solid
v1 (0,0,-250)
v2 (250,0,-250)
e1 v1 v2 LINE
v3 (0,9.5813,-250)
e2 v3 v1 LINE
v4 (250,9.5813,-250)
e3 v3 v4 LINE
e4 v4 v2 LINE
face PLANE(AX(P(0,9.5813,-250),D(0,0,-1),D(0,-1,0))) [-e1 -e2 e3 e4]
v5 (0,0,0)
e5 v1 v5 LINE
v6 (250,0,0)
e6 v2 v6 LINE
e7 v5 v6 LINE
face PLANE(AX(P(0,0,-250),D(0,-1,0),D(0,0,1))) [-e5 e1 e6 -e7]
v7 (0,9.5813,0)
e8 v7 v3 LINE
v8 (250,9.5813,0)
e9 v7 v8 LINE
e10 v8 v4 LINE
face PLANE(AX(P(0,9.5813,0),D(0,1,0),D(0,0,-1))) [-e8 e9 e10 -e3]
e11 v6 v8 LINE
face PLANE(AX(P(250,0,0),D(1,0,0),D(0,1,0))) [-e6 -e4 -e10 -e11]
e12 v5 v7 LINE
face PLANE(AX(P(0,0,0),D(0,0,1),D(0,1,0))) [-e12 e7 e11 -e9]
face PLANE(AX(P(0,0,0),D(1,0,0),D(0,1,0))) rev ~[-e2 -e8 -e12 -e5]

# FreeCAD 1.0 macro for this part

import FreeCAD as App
import Part
import Sketcher
from FreeCAD import Vector


def add_polygon(sketch, points):
    """Adds a closed chain of lines whose ends are joined by coincident constraints."""
    first, n = sketch.GeometryCount, len(points)
    for a, b in zip(points, points[1:] + points[:1]):
        sketch.addGeometry(Part.LineSegment(App.Vector(*a, 0), App.Vector(*b, 0)), False)
    for i in range(n):
        sketch.addConstraint(Sketcher.Constraint("Coincident", first + i, 2, first + (i + 1) % n, 1))

doc = App.newDocument("Part")
body = doc.addObject("PartDesign::Body", "Body")

# Sketch on YZ plane
sketch1 = doc.addObject("Sketcher::SketchObject", "Sketch")
body.addObject(sketch1)
sketch1.AttachmentSupport = (doc.YZ_Plane, [""])
sketch1.MapMode = "FlatFace"
add_polygon(sketch1, [(10, 0), (0, 0), (0, -250), (10, -250)])  # lines 0-3
sketch1.addConstraint([
    Sketcher.Constraint("Horizontal", 0),
    Sketcher.Constraint("Vertical", 1),
    Sketcher.Constraint("Horizontal", 2),
    Sketcher.Constraint("Vertical", 3),
    Sketcher.Constraint("Coincident", 0, 2, -1, 1),
    Sketcher.Constraint("DistanceY", 1, 2, 1, 1, 250.0),
    Sketcher.Constraint("DistanceX", 0, 2, 0, 1, 9.5813),
])
pad1 = doc.addObject("PartDesign::Pad", "Pad")
body.addObject(pad1)
pad1.Profile = sketch1
pad1.Length = 250

doc.recompute()
